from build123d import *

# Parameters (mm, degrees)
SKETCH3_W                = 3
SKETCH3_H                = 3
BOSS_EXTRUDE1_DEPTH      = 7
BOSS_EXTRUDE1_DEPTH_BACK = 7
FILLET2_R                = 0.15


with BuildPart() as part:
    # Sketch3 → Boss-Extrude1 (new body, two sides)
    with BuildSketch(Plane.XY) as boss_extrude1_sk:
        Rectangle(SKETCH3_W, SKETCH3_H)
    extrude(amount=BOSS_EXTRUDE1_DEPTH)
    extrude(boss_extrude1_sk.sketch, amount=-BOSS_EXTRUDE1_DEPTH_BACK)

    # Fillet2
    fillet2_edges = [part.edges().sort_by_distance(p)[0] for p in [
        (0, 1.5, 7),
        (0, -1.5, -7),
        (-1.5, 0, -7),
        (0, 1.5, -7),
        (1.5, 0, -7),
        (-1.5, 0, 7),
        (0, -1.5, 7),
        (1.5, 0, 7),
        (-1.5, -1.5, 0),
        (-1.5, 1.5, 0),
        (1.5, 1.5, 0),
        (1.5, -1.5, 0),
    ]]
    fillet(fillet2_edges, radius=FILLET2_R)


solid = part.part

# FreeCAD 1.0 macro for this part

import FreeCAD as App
import Part
import Sketcher

doc = App.newDocument("Part")
body = doc.addObject("PartDesign::Body", "Body")

sketch1 = body.newObject("Sketcher::SketchObject", "Sketch")
sketch1.AttachmentSupport = (doc.getObject("XY_Plane"), [""])
sketch1.MapMode = "FlatFace"
sketch1.addGeometry([
    Part.LineSegment(App.Vector(-1.5, 1.5, 0), App.Vector(-1.5, -1.5, 0)),
    Part.LineSegment(App.Vector(-1.5, -1.5, 0), App.Vector(1.5, -1.5, 0)),
    Part.LineSegment(App.Vector(1.5, -1.5, 0), App.Vector(1.5, 1.5, 0)),
    Part.LineSegment(App.Vector(1.5, 1.5, 0), App.Vector(-1.5, 1.5, 0)),
], False)
sketch1.addConstraint([
    Sketcher.Constraint("Coincident", 0, 2, 1, 1),
    Sketcher.Constraint("Coincident", 1, 2, 2, 1),
    Sketcher.Constraint("Coincident", 2, 2, 3, 1),
    Sketcher.Constraint("Coincident", 3, 2, 0, 1),
    Sketcher.Constraint("Vertical", 0),
    Sketcher.Constraint("Horizontal", 1),
    Sketcher.Constraint("Vertical", 2),
    Sketcher.Constraint("Horizontal", 3),
    Sketcher.Constraint("Symmetric", 0, 2, 2, 2, -1, 1),
    Sketcher.Constraint("Equal", 3, 0),
    Sketcher.Constraint("DistanceX", 1, 1, 1, 2, 3.0),
])
pad1 = body.newObject("PartDesign::Pad", "Pad")
pad1.Profile = sketch1
pad1.Type = "TwoLengths"
pad1.Length = 7
pad1.Length2 = 7
doc.recompute()

fillet = body.newObject("PartDesign::Fillet", "Fillet")
fillet.Base = (pad1, ["Edge1"])
fillet.UseAllEdges = True
fillet.Radius = 0.15

doc.recompute()
